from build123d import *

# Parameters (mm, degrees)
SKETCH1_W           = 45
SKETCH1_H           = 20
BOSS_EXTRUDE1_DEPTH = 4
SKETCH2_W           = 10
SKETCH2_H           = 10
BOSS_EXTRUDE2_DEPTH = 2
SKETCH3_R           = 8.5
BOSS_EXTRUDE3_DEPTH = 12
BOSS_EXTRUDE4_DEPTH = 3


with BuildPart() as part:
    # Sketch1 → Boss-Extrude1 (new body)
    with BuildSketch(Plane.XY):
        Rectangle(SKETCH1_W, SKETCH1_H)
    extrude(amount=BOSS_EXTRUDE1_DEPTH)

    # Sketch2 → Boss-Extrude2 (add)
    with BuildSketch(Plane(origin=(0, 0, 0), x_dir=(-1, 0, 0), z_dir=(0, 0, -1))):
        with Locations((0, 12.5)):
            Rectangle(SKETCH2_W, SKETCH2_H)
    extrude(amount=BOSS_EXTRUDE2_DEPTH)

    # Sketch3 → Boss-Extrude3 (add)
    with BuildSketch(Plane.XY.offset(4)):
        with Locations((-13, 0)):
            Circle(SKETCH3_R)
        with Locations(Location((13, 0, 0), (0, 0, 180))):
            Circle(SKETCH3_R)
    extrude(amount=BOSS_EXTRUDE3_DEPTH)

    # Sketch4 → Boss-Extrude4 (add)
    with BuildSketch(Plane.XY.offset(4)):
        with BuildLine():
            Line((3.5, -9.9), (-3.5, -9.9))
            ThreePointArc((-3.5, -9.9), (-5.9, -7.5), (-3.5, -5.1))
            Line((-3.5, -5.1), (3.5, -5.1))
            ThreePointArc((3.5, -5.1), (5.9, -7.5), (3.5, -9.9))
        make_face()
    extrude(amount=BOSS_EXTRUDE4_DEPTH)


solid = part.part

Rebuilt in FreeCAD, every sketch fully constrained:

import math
import FreeCAD as App
import Part
import Sketcher

V = App.Vector


def add_polygon(sketch, points):
    """Adds a closed chain of lines whose ends are joined by coincident constraints."""
    first, n = sketch.GeometryCount, len(points)
    for a, b in zip(points, points[1:] + points[:1]):
        sketch.addGeometry(Part.LineSegment(App.Vector(*a, 0), App.Vector(*b, 0)), False)
    for i in range(n):
        sketch.addConstraint(Sketcher.Constraint("Coincident", first + i, 2, first + (i + 1) % n, 1))

doc = App.newDocument("Part")
params = doc.addObject("Spreadsheet::Sheet", "Params")
for row, (alias, value) in enumerate([
    ("sketch1_width", "45 mm"),
    ("sketch1_height", "20 mm"),
    ("pad1_length", "4 mm"),
    ("sketch2_width", "10 mm"),
    ("pad2_length", "2 mm"),
    ("sketch3_diameter", "17 mm"),
    ("pad3_length", "12 mm"),
    ("sketch4_radius", "2.4 mm"),
    ("sketch4_width", "7 mm"),
    ("pad4_length", "3 mm"),
], start=1):
    params.set(f"A{row}", alias)
    params.set(f"B{row}", "=" + value)
    params.setAlias(f"B{row}", alias)

body = doc.addObject("PartDesign::Body", "Body")

# Sketch on XY plane
sketch1 = doc.addObject("Sketcher::SketchObject", "Sketch")
body.addObject(sketch1)
sketch1.AttachmentSupport = (doc.XY_Plane, [""])
sketch1.MapMode = "FlatFace"
add_polygon(sketch1, [(-22, 10), (-22, -10), (22, -10), (22, 10)])  # lines 0-3
sketch1.addConstraint([
    Sketcher.Constraint("Vertical", 0),
    Sketcher.Constraint("Horizontal", 1),
    Sketcher.Constraint("Vertical", 2),
    Sketcher.Constraint("Horizontal", 3),
    Sketcher.Constraint("Symmetric", 0, 2, 2, 2, -1, 1),
    Sketcher.Constraint("DistanceX", 1, 1, 1, 2, 45.0),
    Sketcher.Constraint("DistanceY", 0, 2, 0, 1, 20.0),
])
sketch1.setExpression("Constraints[9]", "Params.sketch1_width")
sketch1.setExpression("Constraints[10]", "Params.sketch1_height")
pad1 = doc.addObject("PartDesign::Pad", "Pad")
body.addObject(pad1)
pad1.Profile = sketch1
pad1.setExpression("Length", "Params.pad1_length")

# Sketch on XY plane
sketch2 = doc.addObject("Sketcher::SketchObject", "Sketch001")
body.addObject(sketch2)
sketch2.AttachmentSupport = (doc.XY_Plane, [""])
sketch2.MapMode = "FlatFace"
add_polygon(sketch2, [(5, 18), (5, 8), (-5, 8), (-5, 18)])  # lines 0-3
sketch2.addConstraint([
    Sketcher.Constraint("Vertical", 0),
    Sketcher.Constraint("Horizontal", 1),
    Sketcher.Constraint("Vertical", 2),
    Sketcher.Constraint("Horizontal", 3),
    Sketcher.Constraint("Equal", 3, 0),
    Sketcher.Constraint("DistanceX", 1, 2, 1, 1, 10.0),
    Sketcher.Constraint("DistanceX", -1, 1, 0, 2, 5.0),
    Sketcher.Constraint("DistanceY", -1, 1, 0, 2, 7.5),
])
sketch2.setExpression("Constraints[9]", "Params.sketch2_width")
pad2 = doc.addObject("PartDesign::Pad", "Pad001")
body.addObject(pad2)
pad2.Profile = sketch2
pad2.setExpression("Length", "Params.pad2_length")
pad2.Reversed = True

# Sketch on XY plane
sketch3 = doc.addObject("Sketcher::SketchObject", "Sketch002")
body.addObject(sketch3)
sketch3.AttachmentSupport = (doc.XY_Plane, [""])
sketch3.MapMode = "FlatFace"
sketch3.AttachmentOffset = App.Placement(V(0, 0, 4), App.Rotation())
sketch3.addGeometry([
    Part.Circle(V(-13, 0, 0), V(0, 0, 1), 8),
    Part.Circle(V(13, 0, 0), V(0, 0, 1), 8),
], False)
sketch3.addConstraint([
    Sketcher.Constraint("Equal", 0, 1),
    Sketcher.Constraint("Symmetric", 0, 3, 1, 3, -1, 1),
    Sketcher.Constraint("PointOnObject", 0, 3, -1),
    Sketcher.Constraint("Diameter", 0, 17.0),
    Sketcher.Constraint("DistanceX", 0, 3, -1, 1, 13.0),
])
sketch3.setExpression("Constraints[3]", "Params.sketch3_diameter")
pad3 = doc.addObject("PartDesign::Pad", "Pad002")
body.addObject(pad3)
pad3.Profile = sketch3
pad3.setExpression("Length", "Params.pad3_length")

# Sketch on XY plane
sketch4 = doc.addObject("Sketcher::SketchObject", "Sketch003")
body.addObject(sketch4)
sketch4.AttachmentSupport = (doc.XY_Plane, [""])
sketch4.MapMode = "FlatFace"
sketch4.AttachmentOffset = App.Placement(V(0, 0, 4), App.Rotation())
sketch4.addGeometry([
    Part.LineSegment(V(-3.5, -9.9, 0), V(3.5, -9.9, 0)),
    Part.ArcOfCircle(Part.Circle(V(3.5, -7.5, 0), V(0, 0, 1), 2.4), math.radians(-90), math.radians(90)),
    Part.LineSegment(V(3.5, -5.1, 0), V(-3.5, -5.1, 0)),
    Part.ArcOfCircle(Part.Circle(V(-3.5, -7.5, 0), V(0, 0, 1), 2.4), math.radians(90), math.radians(270)),
], False)
sketch4.addConstraint([
    Sketcher.Constraint("Tangent", 0, 2, 1, 1),
    Sketcher.Constraint("Tangent", 1, 2, 2, 1),
    Sketcher.Constraint("Tangent", 2, 2, 3, 1),
    Sketcher.Constraint("Tangent", 3, 2, 0, 1),
    Sketcher.Constraint("Horizontal", 0),
    Sketcher.Constraint("Horizontal", 2),
    Sketcher.Constraint("Radius", 1, 2.4),
    Sketcher.Constraint("DistanceX", 0, 1, 0, 2, 7.0),
    Sketcher.Constraint("DistanceX", -1, 1, 1, 3, 3.5),
    Sketcher.Constraint("DistanceY", 1, 3, -1, 1, 7.5),
])
sketch4.setExpression("Constraints[6]", "Params.sketch4_radius")
sketch4.setExpression("Constraints[7]", "Params.sketch4_width")
pad4 = doc.addObject("PartDesign::Pad", "Pad003")
body.addObject(pad4)
pad4.Profile = sketch4
pad4.setExpression("Length", "Params.pad4_length")

doc.recompute()
